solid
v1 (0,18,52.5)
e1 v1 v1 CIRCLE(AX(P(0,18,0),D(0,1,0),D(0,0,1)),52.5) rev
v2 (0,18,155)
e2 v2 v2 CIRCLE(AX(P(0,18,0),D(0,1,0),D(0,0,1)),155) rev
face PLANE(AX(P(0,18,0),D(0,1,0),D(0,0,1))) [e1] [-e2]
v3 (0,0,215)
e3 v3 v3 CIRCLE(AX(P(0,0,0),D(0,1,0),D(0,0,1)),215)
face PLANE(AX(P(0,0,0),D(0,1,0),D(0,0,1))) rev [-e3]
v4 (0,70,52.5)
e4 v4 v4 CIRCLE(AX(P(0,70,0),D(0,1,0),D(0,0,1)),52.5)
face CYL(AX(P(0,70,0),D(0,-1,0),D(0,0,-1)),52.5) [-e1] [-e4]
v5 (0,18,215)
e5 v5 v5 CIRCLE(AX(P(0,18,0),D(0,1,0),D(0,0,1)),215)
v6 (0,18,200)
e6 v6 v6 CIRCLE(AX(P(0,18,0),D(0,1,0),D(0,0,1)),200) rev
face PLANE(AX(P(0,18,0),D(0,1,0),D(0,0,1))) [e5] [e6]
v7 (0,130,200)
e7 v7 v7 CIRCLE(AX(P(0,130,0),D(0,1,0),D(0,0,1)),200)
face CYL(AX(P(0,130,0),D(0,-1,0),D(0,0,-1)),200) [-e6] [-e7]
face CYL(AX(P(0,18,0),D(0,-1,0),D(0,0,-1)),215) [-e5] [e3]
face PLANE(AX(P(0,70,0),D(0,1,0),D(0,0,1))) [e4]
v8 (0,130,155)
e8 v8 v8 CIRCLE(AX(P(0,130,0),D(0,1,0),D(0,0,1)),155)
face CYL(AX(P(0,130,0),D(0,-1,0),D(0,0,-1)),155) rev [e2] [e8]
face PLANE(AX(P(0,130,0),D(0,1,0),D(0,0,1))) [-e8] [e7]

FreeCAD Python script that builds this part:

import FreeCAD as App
import Part
import Sketcher

V = App.Vector

doc = App.newDocument("Part")
body = doc.addObject("PartDesign::Body", "Body")

# Sketch on XZ plane
sketch1 = doc.addObject("Sketcher::SketchObject", "Sketch")
body.addObject(sketch1)
sketch1.AttachmentSupport = (doc.XZ_Plane, [""])
sketch1.MapMode = "FlatFace"
sketch1.addGeometry(Part.Circle(V(0, 0, 0), V(0, 0, 1), 215), False)
sketch1.addGeometry(Part.Circle(V(-170.917714, -70.796435, 0), V(0, 0, 1), 6), False)
sketch1.addGeometry(Part.Circle(V(-70.796435, -170.917714, 0), V(0, 0, 1), 6), False)
sketch1.addGeometry(Part.Circle(V(-170.917714, 70.796435, 0), V(0, 0, 1), 6), False)
sketch1.addGeometry(Part.Circle(V(-70.796435, 170.917714, 0), V(0, 0, 1), 6), False)
sketch1.addGeometry(Part.Circle(V(70.796435, -170.917714, 0), V(0, 0, 1), 6), False)
sketch1.addGeometry(Part.Circle(V(170.917714, -70.796435, 0), V(0, 0, 1), 6), False)
sketch1.addGeometry(Part.Circle(V(70.796435, 170.917714, 0), V(0, 0, 1), 6), False)
sketch1.addGeometry(Part.Circle(V(170.917714, 70.796435, 0), V(0, 0, 1), 6), False)
sketch1.addConstraint(Sketcher.Constraint("Coincident", 0, 3, -1, 1))
sketch1.addConstraint(Sketcher.Constraint("Equal", 1, 2))
sketch1.addConstraint(Sketcher.Constraint("Equal", 2, 3))
sketch1.addConstraint(Sketcher.Constraint("Equal", 3, 4))
sketch1.addConstraint(Sketcher.Constraint("Equal", 4, 5))
sketch1.addConstraint(Sketcher.Constraint("Equal", 5, 6))
sketch1.addConstraint(Sketcher.Constraint("Equal", 6, 7))
sketch1.addConstraint(Sketcher.Constraint("Equal", 7, 8))
sketch1.addConstraint(Sketcher.Constraint("Symmetric", 4, 3, 5, 3, -1, 1))
sketch1.addConstraint(Sketcher.Constraint("Symmetric", 3, 3, 6, 3, -1, 1))
sketch1.addConstraint(Sketcher.Constraint("Symmetric", 2, 3, 7, 3, -1, 1))
sketch1.addConstraint(Sketcher.Constraint("Symmetric", 1, 3, 8, 3, -1, 1))
sketch1.addConstraint(Sketcher.Constraint("Symmetric", 2, 3, 5, 3, -2))
sketch1.addConstraint(Sketcher.Constraint("Symmetric", 1, 3, 6, 3, -2))
sketch1.addConstraint(Sketcher.Constraint("Diameter", 0, 430.0))
sketch1.addConstraint(Sketcher.Constraint("Diameter", 1, 12.0))
sketch1.addConstraint(Sketcher.Constraint("DistanceX", 1, 3, 2, 3, 100.121279))
sketch1.addConstraint(Sketcher.Constraint("DistanceY", 2, 3, 1, 3, 100.121279))
sketch1.addConstraint(Sketcher.Constraint("DistanceY", 1, 3, 3, 3, 141.59287))
sketch1.addConstraint(Sketcher.Constraint("DistanceX", 2, 3, 5, 3, 141.59287))
pad1 = doc.addObject("PartDesign::Pad", "Pad")
body.addObject(pad1)
pad1.Profile = sketch1
pad1.Length = 18
pad1.Reversed = True

# Sketch on XZ plane
sketch2 = doc.addObject("Sketcher::SketchObject", "Sketch001")
body.addObject(sketch2)
sketch2.AttachmentSupport = (doc.XZ_Plane, [""])
sketch2.MapMode = "FlatFace"
sketch2.addGeometry(Part.Circle(V(0, 0, 0), V(0, 0, 1), 200), False)
sketch2.addGeometry(Part.Circle(V(0, 0, 0), V(0, 0, 1), 155), False)
sketch2.addConstraint(Sketcher.Constraint("Coincident", 0, 3, -1, 1))
sketch2.addConstraint(Sketcher.Constraint("Coincident", 1, 3, -1, 1))
sketch2.addConstraint(Sketcher.Constraint("Diameter", 0, 400.0))
sketch2.addConstraint(Sketcher.Constraint("Diameter", 1, 310.0))
pad2 = doc.addObject("PartDesign::Pad", "Pad001")
body.addObject(pad2)
pad2.Profile = sketch2
pad2.Length = 130
pad2.Reversed = True

# Sketch on XZ plane
sketch3 = doc.addObject("Sketcher::SketchObject", "Sketch002")
body.addObject(sketch3)
sketch3.AttachmentSupport = (doc.XZ_Plane, [""])
sketch3.MapMode = "FlatFace"
sketch3.addGeometry(Part.Circle(V(0, 0, 0), V(0, 0, 1), 52.5), False)
sketch3.addConstraint(Sketcher.Constraint("Coincident", 0, 3, -1, 1))
sketch3.addConstraint(Sketcher.Constraint("Diameter", 0, 105.0))
pad3 = doc.addObject("PartDesign::Pad", "Pad002")
body.addObject(pad3)
pad3.Profile = sketch3
pad3.Length = 70
pad3.Reversed = True

doc.recompute()
